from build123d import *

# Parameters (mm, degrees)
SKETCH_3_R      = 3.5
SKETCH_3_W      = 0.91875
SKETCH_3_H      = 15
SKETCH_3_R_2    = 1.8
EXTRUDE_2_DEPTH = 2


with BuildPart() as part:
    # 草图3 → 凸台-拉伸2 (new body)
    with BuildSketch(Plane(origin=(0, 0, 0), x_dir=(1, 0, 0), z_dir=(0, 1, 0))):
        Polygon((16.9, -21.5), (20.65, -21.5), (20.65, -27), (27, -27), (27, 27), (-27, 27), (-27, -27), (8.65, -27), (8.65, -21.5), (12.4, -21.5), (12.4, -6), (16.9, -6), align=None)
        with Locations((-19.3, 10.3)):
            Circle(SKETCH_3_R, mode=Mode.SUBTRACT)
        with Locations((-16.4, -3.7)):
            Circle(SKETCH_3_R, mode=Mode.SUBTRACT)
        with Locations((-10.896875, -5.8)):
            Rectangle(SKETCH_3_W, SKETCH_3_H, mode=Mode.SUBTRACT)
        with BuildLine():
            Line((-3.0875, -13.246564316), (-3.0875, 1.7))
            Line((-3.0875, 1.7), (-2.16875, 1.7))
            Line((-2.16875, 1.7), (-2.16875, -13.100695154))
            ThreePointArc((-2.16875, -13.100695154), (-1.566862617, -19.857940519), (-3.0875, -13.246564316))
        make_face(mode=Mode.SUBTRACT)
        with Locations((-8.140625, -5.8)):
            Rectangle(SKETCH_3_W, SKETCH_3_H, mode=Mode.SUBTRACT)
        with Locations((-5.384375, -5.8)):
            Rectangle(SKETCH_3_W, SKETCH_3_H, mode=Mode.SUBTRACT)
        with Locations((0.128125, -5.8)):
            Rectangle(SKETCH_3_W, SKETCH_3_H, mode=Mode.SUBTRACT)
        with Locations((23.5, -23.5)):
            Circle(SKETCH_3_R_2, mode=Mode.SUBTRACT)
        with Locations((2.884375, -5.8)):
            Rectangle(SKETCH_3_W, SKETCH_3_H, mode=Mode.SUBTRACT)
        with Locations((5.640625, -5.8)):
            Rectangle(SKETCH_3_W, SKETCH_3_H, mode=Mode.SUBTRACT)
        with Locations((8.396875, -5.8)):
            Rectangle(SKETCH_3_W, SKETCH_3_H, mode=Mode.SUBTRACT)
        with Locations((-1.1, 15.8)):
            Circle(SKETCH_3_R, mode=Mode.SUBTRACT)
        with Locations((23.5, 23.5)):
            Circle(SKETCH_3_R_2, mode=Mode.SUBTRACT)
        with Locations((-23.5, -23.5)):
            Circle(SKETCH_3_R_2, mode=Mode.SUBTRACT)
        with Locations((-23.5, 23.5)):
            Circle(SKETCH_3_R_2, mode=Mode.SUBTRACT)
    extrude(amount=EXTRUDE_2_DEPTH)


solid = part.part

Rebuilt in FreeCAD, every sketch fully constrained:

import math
import FreeCAD as App
import Part
import Sketcher
from FreeCAD import Vector
Q = App.Units.Quantity

doc = App.newDocument("Part")
params = doc.addObject("Spreadsheet::Sheet", "Params")
for row, (alias, value) in enumerate([
    ("sketch1_diameter", "7 mm"),
    ("sketch1_diameter2", "3.6 mm"),
    ("sketch1_radius", "3.4 mm"),
    ("sketch1_width", "54 mm"),
    ("sketch1_height", "15 mm"),
    ("pad1_length", "2 mm"),
], start=1):
    params.set(f"A{row}", alias)
    params.set(f"B{row}", "=" + value)
    params.setAlias(f"B{row}", alias)

body = doc.addObject("PartDesign::Body", "Body")

sketch1 = doc.addObject("Sketcher::SketchObject", "Sketch")
body.addObject(sketch1)
sketch1.AttachmentSupport = (doc.XZ_Plane, [""])
sketch1.MapMode = "FlatFace"
sketch1.addGeometry(Part.LineSegment(Vector(16.9, 21.5, 0), Vector(20.6, 21.5, 0)), False)
sketch1.addGeometry(Part.LineSegment(Vector(20.6, 21.5, 0), Vector(20.6, 27, 0)), False)
sketch1.addGeometry(Part.LineSegment(Vector(20.6, 27, 0), Vector(27, 27, 0)), False)
sketch1.addGeometry(Part.LineSegment(Vector(27, 27, 0), Vector(27, -27, 0)), False)
sketch1.addGeometry(Part.LineSegment(Vector(27, -27, 0), Vector(-27, -27, 0)), False)
sketch1.addGeometry(Part.LineSegment(Vector(-27, -27, 0), Vector(-27, 27, 0)), False)
sketch1.addGeometry(Part.LineSegment(Vector(-27, 27, 0), Vector(8.7, 27, 0)), False)
sketch1.addGeometry(Part.LineSegment(Vector(8.7, 27, 0), Vector(8.7, 21.5, 0)), False)
sketch1.addGeometry(Part.LineSegment(Vector(8.7, 21.5, 0), Vector(12.4, 21.5, 0)), False)
sketch1.addGeometry(Part.LineSegment(Vector(12.4, 21.5, 0), Vector(12.4, 6, 0)), False)
sketch1.addGeometry(Part.LineSegment(Vector(12.4, 6, 0), Vector(16.9, 6, 0)), False)
sketch1.addGeometry(Part.LineSegment(Vector(16.9, 6, 0), Vector(16.9, 21.5, 0)), False)
sketch1.addGeometry(Part.Circle(Vector(-23.5, 23.5, 0), Vector(0, 0, 1), 1.8), False)
sketch1.addGeometry(Part.Circle(Vector(-16.4, 3.7, 0), Vector(0, 0, 1), 3.5), False)
sketch1.addGeometry(Part.ArcOfCircle(Part.Circle(Vector(-2.1, 16.5, 0), Vector(0, 0, 1), 3.4), math.radians(-91), math.radians(253)), False)
sketch1.addGeometry(Part.LineSegment(Vector(-3.1, 13.2, 0), Vector(-3.1, -1.7, 0)), False)
sketch1.addGeometry(Part.LineSegment(Vector(-3.1, -1.7, 0), Vector(-2.2, -1.7, 0)), False)
sketch1.addGeometry(Part.LineSegment(Vector(-2.2, -1.7, 0), Vector(-2.2, 13.1, 0)), False)
sketch1.addGeometry(Part.LineSegment(Vector(-10.4, 13.3, 0), Vector(-11.4, 13.3, 0)), False)
sketch1.addGeometry(Part.LineSegment(Vector(-11.4, 13.3, 0), Vector(-11.4, -1.7, 0)), False)
sketch1.addGeometry(Part.LineSegment(Vector(-11.4, -1.7, 0), Vector(-10.4, -1.7, 0)), False)
sketch1.addGeometry(Part.LineSegment(Vector(-10.4, -1.7, 0), Vector(-10.4, 13.3, 0)), False)
sketch1.addGeometry(Part.LineSegment(Vector(-7.7, 13.3, 0), Vector(-8.6, 13.3, 0)), False)
sketch1.addGeometry(Part.LineSegment(Vector(-8.6, 13.3, 0), Vector(-8.6, -1.7, 0)), False)
sketch1.addGeometry(Part.LineSegment(Vector(-8.6, -1.7, 0), Vector(-7.7, -1.7, 0)), False)
sketch1.addGeometry(Part.LineSegment(Vector(-7.7, -1.7, 0), Vector(-7.7, 13.3, 0)), False)
sketch1.addGeometry(Part.LineSegment(Vector(-4.9, 13.3, 0), Vector(-5.8, 13.3, 0)), False)
sketch1.addGeometry(Part.LineSegment(Vector(-5.8, 13.3, 0), Vector(-5.8, -1.7, 0)), False)
sketch1.addGeometry(Part.LineSegment(Vector(-5.8, -1.7, 0), Vector(-4.9, -1.7, 0)), False)
sketch1.addGeometry(Part.LineSegment(Vector(-4.9, -1.7, 0), Vector(-4.9, 13.3, 0)), False)
sketch1.addGeometry(Part.Circle(Vector(23.5, 23.5, 0), Vector(0, 0, 1), 1.8), False)
sketch1.addGeometry(Part.LineSegment(Vector(0.6, 13.3, 0), Vector(-0.3, 13.3, 0)), False)
sketch1.addGeometry(Part.LineSegment(Vector(-0.3, 13.3, 0), Vector(-0.3, -1.7, 0)), False)
sketch1.addGeometry(Part.LineSegment(Vector(-0.3, -1.7, 0), Vector(0.6, -1.7, 0)), False)
sketch1.addGeometry(Part.LineSegment(Vector(0.6, -1.7, 0), Vector(0.6, 13.3, 0)), False)
sketch1.addGeometry(Part.LineSegment(Vector(3.3, 13.3, 0), Vector(2.4, 13.3, 0)), False)
sketch1.addGeometry(Part.LineSegment(Vector(2.4, 13.3, 0), Vector(2.4, -1.7, 0)), False)
sketch1.addGeometry(Part.LineSegment(Vector(2.4, -1.7, 0), Vector(3.3, -1.7, 0)), False)
sketch1.addGeometry(Part.LineSegment(Vector(3.3, -1.7, 0), Vector(3.3, 13.3, 0)), False)
sketch1.addGeometry(Part.LineSegment(Vector(6.1, 13.3, 0), Vector(5.2, 13.3, 0)), False)
sketch1.addGeometry(Part.LineSegment(Vector(5.2, 13.3, 0), Vector(5.2, -1.7, 0)), False)
sketch1.addGeometry(Part.LineSegment(Vector(5.2, -1.7, 0), Vector(6.1, -1.7, 0)), False)
sketch1.addGeometry(Part.LineSegment(Vector(6.1, -1.7, 0), Vector(6.1, 13.3, 0)), False)
sketch1.addGeometry(Part.LineSegment(Vector(8.9, 13.3, 0), Vector(7.9, 13.3, 0)), False)
sketch1.addGeometry(Part.LineSegment(Vector(7.9, 13.3, 0), Vector(7.9, -1.7, 0)), False)
sketch1.addGeometry(Part.LineSegment(Vector(7.9, -1.7, 0), Vector(8.9, -1.7, 0)), False)
sketch1.addGeometry(Part.LineSegment(Vector(8.9, -1.7, 0), Vector(8.9, 13.3, 0)), False)
sketch1.addGeometry(Part.Circle(Vector(-19.3, -10.3, 0), Vector(0, 0, 1), 3.5), False)
sketch1.addGeometry(Part.Circle(Vector(-23.5, -23.5, 0), Vector(0, 0, 1), 1.8), False)
sketch1.addGeometry(Part.Circle(Vector(-1.1, -15.8, 0), Vector(0, 0, 1), 3.5), False)
sketch1.addGeometry(Part.Circle(Vector(23.5, -23.5, 0), Vector(0, 0, 1), 1.8), False)
sketch1.addConstraint(Sketcher.Constraint("Coincident", 0, 2, 1, 1))
sketch1.addConstraint(Sketcher.Constraint("Coincident", 1, 2, 2, 1))
sketch1.addConstraint(Sketcher.Constraint("Coincident", 2, 2, 3, 1))
sketch1.addConstraint(Sketcher.Constraint("Coincident", 3, 2, 4, 1))
sketch1.addConstraint(Sketcher.Constraint("Coincident", 4, 2, 5, 1))
sketch1.addConstraint(Sketcher.Constraint("Coincident", 5, 2, 6, 1))
sketch1.addConstraint(Sketcher.Constraint("Coincident", 6, 2, 7, 1))
sketch1.addConstraint(Sketcher.Constraint("Coincident", 7, 2, 8, 1))
sketch1.addConstraint(Sketcher.Constraint("Coincident", 8, 2, 9, 1))
sketch1.addConstraint(Sketcher.Constraint("Coincident", 9, 2, 10, 1))
sketch1.addConstraint(Sketcher.Constraint("Coincident", 10, 2, 11, 1))
sketch1.addConstraint(Sketcher.Constraint("Coincident", 11, 2, 0, 1))
sketch1.addConstraint(Sketcher.Constraint("Coincident", 14, 2, 15, 1))
sketch1.addConstraint(Sketcher.Constraint("Coincident", 15, 2, 16, 1))
sketch1.addConstraint(Sketcher.Constraint("Coincident", 16, 2, 17, 1))
sketch1.addConstraint(Sketcher.Constraint("Coincident", 17, 2, 14, 1))
sketch1.addConstraint(Sketcher.Constraint("Coincident", 18, 2, 19, 1))
sketch1.addConstraint(Sketcher.Constraint("Coincident", 19, 2, 20, 1))
sketch1.addConstraint(Sketcher.Constraint("Coincident", 20, 2, 21, 1))
sketch1.addConstraint(Sketcher.Constraint("Coincident", 21, 2, 18, 1))
sketch1.addConstraint(Sketcher.Constraint("Coincident", 22, 2, 23, 1))
sketch1.addConstraint(Sketcher.Constraint("Coincident", 23, 2, 24, 1))
sketch1.addConstraint(Sketcher.Constraint("Coincident", 24, 2, 25, 1))
sketch1.addConstraint(Sketcher.Constraint("Coincident", 25, 2, 22, 1))
sketch1.addConstraint(Sketcher.Constraint("Coincident", 26, 2, 27, 1))
sketch1.addConstraint(Sketcher.Constraint("Coincident", 27, 2, 28, 1))
sketch1.addConstraint(Sketcher.Constraint("Coincident", 28, 2, 29, 1))
sketch1.addConstraint(Sketcher.Constraint("Coincident", 29, 2, 26, 1))
sketch1.addConstraint(Sketcher.Constraint("Coincident", 31, 2, 32, 1))
sketch1.addConstraint(Sketcher.Constraint("Coincident", 32, 2, 33, 1))
sketch1.addConstraint(Sketcher.Constraint("Coincident", 33, 2, 34, 1))
sketch1.addConstraint(Sketcher.Constraint("Coincident", 34, 2, 31, 1))
sketch1.addConstraint(Sketcher.Constraint("Coincident", 35, 2, 36, 1))
sketch1.addConstraint(Sketcher.Constraint("Coincident", 36, 2, 37, 1))
sketch1.addConstraint(Sketcher.Constraint("Coincident", 37, 2, 38, 1))
sketch1.addConstraint(Sketcher.Constraint("Coincident", 38, 2, 35, 1))
sketch1.addConstraint(Sketcher.Constraint("Coincident", 39, 2, 40, 1))
sketch1.addConstraint(Sketcher.Constraint("Coincident", 40, 2, 41, 1))
sketch1.addConstraint(Sketcher.Constraint("Coincident", 41, 2, 42, 1))
sketch1.addConstraint(Sketcher.Constraint("Coincident", 42, 2, 39, 1))
sketch1.addConstraint(Sketcher.Constraint("Coincident", 43, 2, 44, 1))
sketch1.addConstraint(Sketcher.Constraint("Coincident", 44, 2, 45, 1))
sketch1.addConstraint(Sketcher.Constraint("Coincident", 45, 2, 46, 1))
sketch1.addConstraint(Sketcher.Constraint("Coincident", 46, 2, 43, 1))
sketch1.addConstraint(Sketcher.Constraint("Horizontal", 0))
sketch1.addConstraint(Sketcher.Constraint("Vertical", 1))
sketch1.addConstraint(Sketcher.Constraint("Horizontal", 2))
sketch1.addConstraint(Sketcher.Constraint("Vertical", 3))
sketch1.addConstraint(Sketcher.Constraint("Horizontal", 4))
sketch1.addConstraint(Sketcher.Constraint("Vertical", 5))
sketch1.addConstraint(Sketcher.Constraint("Horizontal", 6))
sketch1.addConstraint(Sketcher.Constraint("Vertical", 7))
sketch1.addConstraint(Sketcher.Constraint("Horizontal", 8))
sketch1.addConstraint(Sketcher.Constraint("Vertical", 9))
sketch1.addConstraint(Sketcher.Constraint("Horizontal", 10))
sketch1.addConstraint(Sketcher.Constraint("Vertical", 11))
sketch1.addConstraint(Sketcher.Constraint("Vertical", 15))
sketch1.addConstraint(Sketcher.Constraint("Horizontal", 16))
sketch1.addConstraint(Sketcher.Constraint("Vertical", 17))
sketch1.addConstraint(Sketcher.Constraint("Horizontal", 18))
sketch1.addConstraint(Sketcher.Constraint("Vertical", 19))
sketch1.addConstraint(Sketcher.Constraint("Horizontal", 20))
sketch1.addConstraint(Sketcher.Constraint("Vertical", 21))
sketch1.addConstraint(Sketcher.Constraint("Horizontal", 22))
sketch1.addConstraint(Sketcher.Constraint("Vertical", 23))
sketch1.addConstraint(Sketcher.Constraint("Horizontal", 24))
sketch1.addConstraint(Sketcher.Constraint("Vertical", 25))
sketch1.addConstraint(Sketcher.Constraint("Horizontal", 26))
sketch1.addConstraint(Sketcher.Constraint("Vertical", 27))
sketch1.addConstraint(Sketcher.Constraint("Horizontal", 28))
sketch1.addConstraint(Sketcher.Constraint("Vertical", 29))
sketch1.addConstraint(Sketcher.Constraint("Horizontal", 31))
sketch1.addConstraint(Sketcher.Constraint("Vertical", 32))
sketch1.addConstraint(Sketcher.Constraint("Horizontal", 33))
sketch1.addConstraint(Sketcher.Constraint("Vertical", 34))
sketch1.addConstraint(Sketcher.Constraint("Horizontal", 35))
sketch1.addConstraint(Sketcher.Constraint("Vertical", 36))
sketch1.addConstraint(Sketcher.Constraint("Horizontal", 37))
sketch1.addConstraint(Sketcher.Constraint("Vertical", 38))
sketch1.addConstraint(Sketcher.Constraint("Horizontal", 39))
sketch1.addConstraint(Sketcher.Constraint("Vertical", 40))
sketch1.addConstraint(Sketcher.Constraint("Horizontal", 41))
sketch1.addConstraint(Sketcher.Constraint("Vertical", 42))
sketch1.addConstraint(Sketcher.Constraint("Horizontal", 43))
sketch1.addConstraint(Sketcher.Constraint("Vertical", 44))
sketch1.addConstraint(Sketcher.Constraint("Horizontal", 45))
sketch1.addConstraint(Sketcher.Constraint("Vertical", 46))
sketch1.addConstraint(Sketcher.Constraint("Equal", 12, 30))
sketch1.addConstraint(Sketcher.Constraint("Equal", 13, 47))
sketch1.addConstraint(Sketcher.Constraint("Equal", 30, 48))
sketch1.addConstraint(Sketcher.Constraint("Equal", 47, 49))
sketch1.addConstraint(Sketcher.Constraint("Equal", 48, 50))
sketch1.addConstraint(Sketcher.Constraint("Symmetric", 30, 3, 48, 3, -1, 1))
sketch1.addConstraint(Sketcher.Constraint("Symmetric", 12, 3, 50, 3, -1, 1))
sketch1.addConstraint(Sketcher.Constraint("Symmetric", 2, 2, 4, 2, -1, 1))
sketch1.addConstraint(Sketcher.Constraint("Symmetric", 12, 3, 30, 3, -2))
sketch1.addConstraint(Sketcher.Constraint("Horizontal", 2, 2, 5, 2))
sketch1.addConstraint(Sketcher.Constraint("Horizontal", 0, 2, 7, 2))
sketch1.addConstraint(Sketcher.Constraint("Horizontal", 16, 2, 19, 2))
sketch1.addConstraint(Sketcher.Constraint("Horizontal", 21, 2, 22, 2))
sketch1.addConstraint(Sketcher.Constraint("Horizontal", 20, 2, 23, 2))
sketch1.addConstraint(Sketcher.Constraint("Horizontal", 25, 2, 26, 2))
sketch1.addConstraint(Sketcher.Constraint("Horizontal", 24, 2, 27, 2))
sketch1.addConstraint(Sketcher.Constraint("Horizontal", 29, 2, 31, 2))
sketch1.addConstraint(Sketcher.Constraint("Horizontal", 28, 2, 32, 2))
sketch1.addConstraint(Sketcher.Constraint("Horizontal", 34, 2, 35, 2))
sketch1.addConstraint(Sketcher.Constraint("Horizontal", 33, 2, 36, 2))
sketch1.addConstraint(Sketcher.Constraint("Horizontal", 38, 2, 39, 2))
sketch1.addConstraint(Sketcher.Constraint("Horizontal", 37, 2, 40, 2))
sketch1.addConstraint(Sketcher.Constraint("Horizontal", 42, 2, 43, 2))
sketch1.addConstraint(Sketcher.Constraint("Horizontal", 41, 2, 44, 2))
sketch1.addConstraint(Sketcher.Constraint("Equal", 0, 8))
sketch1.addConstraint(Sketcher.Constraint("Equal", 16, 18))
sketch1.addConstraint(Sketcher.Constraint("Equal", 20, 22))
sketch1.addConstraint(Sketcher.Constraint("Equal", 24, 26))
sketch1.addConstraint(Sketcher.Constraint("Equal", 28, 31))
sketch1.addConstraint(Sketcher.Constraint("Equal", 33, 35))
sketch1.addConstraint(Sketcher.Constraint("Equal", 37, 39))
sketch1.addConstraint(Sketcher.Constraint("Equal", 41, 43))
sketch1.addConstraint(Sketcher.Constraint("Equal", 4, 3))
sketch1.addConstraint(Sketcher.Constraint("Diameter", 13, Q("7 mm")))
sketch1.addConstraint(Sketcher.Constraint("Diameter", 12, Q("3.6 mm")))
sketch1.addConstraint(Sketcher.Constraint("Radius", 14, Q("3.4 mm")))
sketch1.addConstraint(Sketcher.Constraint("DistanceX", 4, 2, 4, 1, Q("54 mm")))
sketch1.addConstraint(Sketcher.Constraint("DistanceY", 19, 2, 19, 1, Q("15 mm")))
sketch1.addConstraint(Sketcher.Constraint("DistanceX", 10, 1, 10, 2, Q("4.5 mm")))
sketch1.addConstraint(Sketcher.Constraint("DistanceY", 1, 1, 1, 2, Q("5.5 mm")))
sketch1.addConstraint(Sketcher.Constraint("DistanceY", 9, 2, 9, 1, Q("15.5 mm")))
sketch1.addConstraint(Sketcher.Constraint("DistanceY", 14, 3, 12, 3, Q("7 mm")))
sketch1.addConstraint(Sketcher.Constraint("DistanceX", 12, 3, 30, 3, Q("47 mm")))
sketch1.addConstraint(Sketcher.Constraint("DistanceY", 47, 3, 13, 3, Q("14 mm")))
sketch1.addConstraint(Sketcher.Constraint("DistanceY", 48, 3, 14, 3, Q("40 mm")))
sketch1.addConstraint(Sketcher.Constraint("DistanceX", 14, 3, 49, 3, Q("1 mm")))
sketch1.addConstraint(Sketcher.Constraint("DistanceX", 6, 2, 1, 2, Q("12 mm")))
sketch1.addConstraint(Sketcher.Constraint("DistanceX", 2, 1, 2, 2, Q("6.35 mm")))
sketch1.addConstraint(Sketcher.Constraint("DistanceX", 13, 3, -1, 1, Q("16.4 mm")))
sketch1.addConstraint(Sketcher.Constraint("DistanceY", -1, 1, 13, 3, Q("3.7 mm")))
sketch1.addConstraint(Sketcher.Constraint("DistanceX", 14, 3, -1, 1, Q("2.1 mm")))
sketch1.addConstraint(Sketcher.Constraint("DistanceX", 47, 3, -1, 1, Q("19.3 mm")))
sketch1.addConstraint(Sketcher.Constraint("DistanceY", 49, 3, -1, 1, Q("15.8 mm")))
sketch1.addConstraint(Sketcher.Constraint("DistanceY", 15, 2, -1, 1, Q("1.7 mm")))
sketch1.addConstraint(Sketcher.Constraint("DistanceX", 22, 2, -1, 1, Q("8.6 mm")))
sketch1.addConstraint(Sketcher.Constraint("DistanceX", -1, 1, 41, 2, Q("6.1 mm")))
sketch1.addConstraint(Sketcher.Constraint("DistanceX", 20, 2, 15, 2, Q("7.35 mm")))
sketch1.addConstraint(Sketcher.Constraint("DistanceX", 24, 2, 32, 2, Q("7.35 mm")))
sketch1.addConstraint(Sketcher.Constraint("DistanceX", 28, 2, 36, 2, Q("7.35 mm")))
sketch1.addConstraint(Sketcher.Constraint("DistanceX", 17, 2, 39, 2, Q("7.35 mm")))
sketch1.addConstraint(Sketcher.Constraint("DistanceX", 34, 2, 43, 2, Q("7.35 mm")))
sketch1.addConstraint(Sketcher.Constraint("DistanceX", 28, 2, -1, 1, Q("4.925 mm")))
sketch1.addConstraint(Sketcher.Constraint("DistanceX", 19, 2, 24, 2, Q("3.675 mm")))
sketch1.setExpression("Constraints[120]", "Params.sketch1_diameter")
sketch1.setExpression("Constraints[121]", "Params.sketch1_diameter2")
sketch1.setExpression("Constraints[122]", "Params.sketch1_radius")
sketch1.setExpression("Constraints[123]", "Params.sketch1_width")
sketch1.setExpression("Constraints[124]", "Params.sketch1_height")
pad1 = doc.addObject("PartDesign::Pad", "Pad")
body.addObject(pad1)
pad1.Profile = sketch1
pad1.setExpression("Length", "Params.pad1_length")
pad1.Reversed = True

doc.recompute()
